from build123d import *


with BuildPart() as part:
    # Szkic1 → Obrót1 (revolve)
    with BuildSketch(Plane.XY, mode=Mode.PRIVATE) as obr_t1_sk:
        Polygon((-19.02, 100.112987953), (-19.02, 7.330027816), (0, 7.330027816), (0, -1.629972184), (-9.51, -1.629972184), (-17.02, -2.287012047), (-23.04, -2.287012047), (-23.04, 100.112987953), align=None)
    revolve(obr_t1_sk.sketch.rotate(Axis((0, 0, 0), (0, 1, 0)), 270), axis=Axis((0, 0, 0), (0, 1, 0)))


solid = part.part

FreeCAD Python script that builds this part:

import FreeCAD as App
import Part
import Sketcher

V = App.Vector
Q = App.Units.Quantity


def add_polygon(sketch, points):
    """Adds a closed chain of lines whose ends are joined by coincident constraints."""
    first, n = sketch.GeometryCount, len(points)
    for a, b in zip(points, points[1:] + points[:1]):
        sketch.addGeometry(Part.LineSegment(App.Vector(*a, 0), App.Vector(*b, 0)), False)
    for i in range(n):
        sketch.addConstraint(Sketcher.Constraint("Coincident", first + i, 2, first + (i + 1) % n, 1))

doc = App.newDocument("Part")
params = doc.addObject("Spreadsheet::Sheet", "Params")
for row, (alias, value) in enumerate([
    ("sketch1_height", "102.4 mm"),
    ("sketch1_width", "4.02 mm"),
    ("sketch1_width2", "9.51 mm"),
    ("sketch1_width3", "19.02 mm"),
    ("sketch1_height2", "8.96 mm"),
    ("revolution_angle", "360 deg"),
], start=1):
    params.set(f"A{row}", alias)
    params.set(f"B{row}", "=" + value)
    params.setAlias(f"B{row}", alias)

body = doc.addObject("PartDesign::Body", "Body")

# Sketch on XY plane
sketch1 = doc.addObject("Sketcher::SketchObject", "Sketch")
body.addObject(sketch1)
sketch1.AttachmentSupport = (doc.XY_Plane, [""])
sketch1.MapMode = "FlatFace"
add_polygon(sketch1, [(-19.02, 7.330028), (-19.02, 100.112988), (-23.04, 100.112988), (-23.04, -2.287012), (-17.02, -2.287012), (-9.51, -1.629972), (0, -1.629972), (0, 7.330028)])  # lines 0-7
sketch1.addConstraint(Sketcher.Constraint("Vertical", 0))
sketch1.addConstraint(Sketcher.Constraint("Horizontal", 1))
sketch1.addConstraint(Sketcher.Constraint("Vertical", 2))
sketch1.addConstraint(Sketcher.Constraint("Horizontal", 3))
sketch1.addConstraint(Sketcher.Constraint("Horizontal", 5))
sketch1.addConstraint(Sketcher.Constraint("Vertical", 6))
sketch1.addConstraint(Sketcher.Constraint("Horizontal", 7))
sketch1.addConstraint(Sketcher.Constraint("PointOnObject", 5, 2, -2))
sketch1.addConstraint(Sketcher.Constraint("Angle", 4, Q("5 deg")))
sketch1.addConstraint(Sketcher.Constraint("DistanceY", 2, 2, 2, 1, 102.4))
sketch1.addConstraint(Sketcher.Constraint("DistanceX", 0, 2, 3, 2, 2.0))
sketch1.addConstraint(Sketcher.Constraint("DistanceX", 1, 2, 1, 1, 4.02))
sketch1.addConstraint(Sketcher.Constraint("DistanceX", 5, 1, 5, 2, 9.51))
sketch1.addConstraint(Sketcher.Constraint("DistanceX", 7, 2, 7, 1, 19.02))
sketch1.addConstraint(Sketcher.Constraint("DistanceY", 6, 1, 6, 2, 8.96))
sketch1.addConstraint(Sketcher.Constraint("DistanceY", -1, 1, 0, 2, 100.112988))
sketch1.setExpression("Constraints[17]", "Params.sketch1_height")
sketch1.setExpression("Constraints[19]", "Params.sketch1_width")
sketch1.setExpression("Constraints[20]", "Params.sketch1_width2")
sketch1.setExpression("Constraints[21]", "Params.sketch1_width3")
sketch1.setExpression("Constraints[22]", "Params.sketch1_height2")
revolution = doc.addObject("PartDesign::Revolution", "Revolution")
body.addObject(revolution)
revolution.Profile = sketch1
revolution.ReferenceAxis = (sketch1, ["V_Axis"])
revolution.setExpression("Angle", "Params.revolution_angle")

doc.recompute()
